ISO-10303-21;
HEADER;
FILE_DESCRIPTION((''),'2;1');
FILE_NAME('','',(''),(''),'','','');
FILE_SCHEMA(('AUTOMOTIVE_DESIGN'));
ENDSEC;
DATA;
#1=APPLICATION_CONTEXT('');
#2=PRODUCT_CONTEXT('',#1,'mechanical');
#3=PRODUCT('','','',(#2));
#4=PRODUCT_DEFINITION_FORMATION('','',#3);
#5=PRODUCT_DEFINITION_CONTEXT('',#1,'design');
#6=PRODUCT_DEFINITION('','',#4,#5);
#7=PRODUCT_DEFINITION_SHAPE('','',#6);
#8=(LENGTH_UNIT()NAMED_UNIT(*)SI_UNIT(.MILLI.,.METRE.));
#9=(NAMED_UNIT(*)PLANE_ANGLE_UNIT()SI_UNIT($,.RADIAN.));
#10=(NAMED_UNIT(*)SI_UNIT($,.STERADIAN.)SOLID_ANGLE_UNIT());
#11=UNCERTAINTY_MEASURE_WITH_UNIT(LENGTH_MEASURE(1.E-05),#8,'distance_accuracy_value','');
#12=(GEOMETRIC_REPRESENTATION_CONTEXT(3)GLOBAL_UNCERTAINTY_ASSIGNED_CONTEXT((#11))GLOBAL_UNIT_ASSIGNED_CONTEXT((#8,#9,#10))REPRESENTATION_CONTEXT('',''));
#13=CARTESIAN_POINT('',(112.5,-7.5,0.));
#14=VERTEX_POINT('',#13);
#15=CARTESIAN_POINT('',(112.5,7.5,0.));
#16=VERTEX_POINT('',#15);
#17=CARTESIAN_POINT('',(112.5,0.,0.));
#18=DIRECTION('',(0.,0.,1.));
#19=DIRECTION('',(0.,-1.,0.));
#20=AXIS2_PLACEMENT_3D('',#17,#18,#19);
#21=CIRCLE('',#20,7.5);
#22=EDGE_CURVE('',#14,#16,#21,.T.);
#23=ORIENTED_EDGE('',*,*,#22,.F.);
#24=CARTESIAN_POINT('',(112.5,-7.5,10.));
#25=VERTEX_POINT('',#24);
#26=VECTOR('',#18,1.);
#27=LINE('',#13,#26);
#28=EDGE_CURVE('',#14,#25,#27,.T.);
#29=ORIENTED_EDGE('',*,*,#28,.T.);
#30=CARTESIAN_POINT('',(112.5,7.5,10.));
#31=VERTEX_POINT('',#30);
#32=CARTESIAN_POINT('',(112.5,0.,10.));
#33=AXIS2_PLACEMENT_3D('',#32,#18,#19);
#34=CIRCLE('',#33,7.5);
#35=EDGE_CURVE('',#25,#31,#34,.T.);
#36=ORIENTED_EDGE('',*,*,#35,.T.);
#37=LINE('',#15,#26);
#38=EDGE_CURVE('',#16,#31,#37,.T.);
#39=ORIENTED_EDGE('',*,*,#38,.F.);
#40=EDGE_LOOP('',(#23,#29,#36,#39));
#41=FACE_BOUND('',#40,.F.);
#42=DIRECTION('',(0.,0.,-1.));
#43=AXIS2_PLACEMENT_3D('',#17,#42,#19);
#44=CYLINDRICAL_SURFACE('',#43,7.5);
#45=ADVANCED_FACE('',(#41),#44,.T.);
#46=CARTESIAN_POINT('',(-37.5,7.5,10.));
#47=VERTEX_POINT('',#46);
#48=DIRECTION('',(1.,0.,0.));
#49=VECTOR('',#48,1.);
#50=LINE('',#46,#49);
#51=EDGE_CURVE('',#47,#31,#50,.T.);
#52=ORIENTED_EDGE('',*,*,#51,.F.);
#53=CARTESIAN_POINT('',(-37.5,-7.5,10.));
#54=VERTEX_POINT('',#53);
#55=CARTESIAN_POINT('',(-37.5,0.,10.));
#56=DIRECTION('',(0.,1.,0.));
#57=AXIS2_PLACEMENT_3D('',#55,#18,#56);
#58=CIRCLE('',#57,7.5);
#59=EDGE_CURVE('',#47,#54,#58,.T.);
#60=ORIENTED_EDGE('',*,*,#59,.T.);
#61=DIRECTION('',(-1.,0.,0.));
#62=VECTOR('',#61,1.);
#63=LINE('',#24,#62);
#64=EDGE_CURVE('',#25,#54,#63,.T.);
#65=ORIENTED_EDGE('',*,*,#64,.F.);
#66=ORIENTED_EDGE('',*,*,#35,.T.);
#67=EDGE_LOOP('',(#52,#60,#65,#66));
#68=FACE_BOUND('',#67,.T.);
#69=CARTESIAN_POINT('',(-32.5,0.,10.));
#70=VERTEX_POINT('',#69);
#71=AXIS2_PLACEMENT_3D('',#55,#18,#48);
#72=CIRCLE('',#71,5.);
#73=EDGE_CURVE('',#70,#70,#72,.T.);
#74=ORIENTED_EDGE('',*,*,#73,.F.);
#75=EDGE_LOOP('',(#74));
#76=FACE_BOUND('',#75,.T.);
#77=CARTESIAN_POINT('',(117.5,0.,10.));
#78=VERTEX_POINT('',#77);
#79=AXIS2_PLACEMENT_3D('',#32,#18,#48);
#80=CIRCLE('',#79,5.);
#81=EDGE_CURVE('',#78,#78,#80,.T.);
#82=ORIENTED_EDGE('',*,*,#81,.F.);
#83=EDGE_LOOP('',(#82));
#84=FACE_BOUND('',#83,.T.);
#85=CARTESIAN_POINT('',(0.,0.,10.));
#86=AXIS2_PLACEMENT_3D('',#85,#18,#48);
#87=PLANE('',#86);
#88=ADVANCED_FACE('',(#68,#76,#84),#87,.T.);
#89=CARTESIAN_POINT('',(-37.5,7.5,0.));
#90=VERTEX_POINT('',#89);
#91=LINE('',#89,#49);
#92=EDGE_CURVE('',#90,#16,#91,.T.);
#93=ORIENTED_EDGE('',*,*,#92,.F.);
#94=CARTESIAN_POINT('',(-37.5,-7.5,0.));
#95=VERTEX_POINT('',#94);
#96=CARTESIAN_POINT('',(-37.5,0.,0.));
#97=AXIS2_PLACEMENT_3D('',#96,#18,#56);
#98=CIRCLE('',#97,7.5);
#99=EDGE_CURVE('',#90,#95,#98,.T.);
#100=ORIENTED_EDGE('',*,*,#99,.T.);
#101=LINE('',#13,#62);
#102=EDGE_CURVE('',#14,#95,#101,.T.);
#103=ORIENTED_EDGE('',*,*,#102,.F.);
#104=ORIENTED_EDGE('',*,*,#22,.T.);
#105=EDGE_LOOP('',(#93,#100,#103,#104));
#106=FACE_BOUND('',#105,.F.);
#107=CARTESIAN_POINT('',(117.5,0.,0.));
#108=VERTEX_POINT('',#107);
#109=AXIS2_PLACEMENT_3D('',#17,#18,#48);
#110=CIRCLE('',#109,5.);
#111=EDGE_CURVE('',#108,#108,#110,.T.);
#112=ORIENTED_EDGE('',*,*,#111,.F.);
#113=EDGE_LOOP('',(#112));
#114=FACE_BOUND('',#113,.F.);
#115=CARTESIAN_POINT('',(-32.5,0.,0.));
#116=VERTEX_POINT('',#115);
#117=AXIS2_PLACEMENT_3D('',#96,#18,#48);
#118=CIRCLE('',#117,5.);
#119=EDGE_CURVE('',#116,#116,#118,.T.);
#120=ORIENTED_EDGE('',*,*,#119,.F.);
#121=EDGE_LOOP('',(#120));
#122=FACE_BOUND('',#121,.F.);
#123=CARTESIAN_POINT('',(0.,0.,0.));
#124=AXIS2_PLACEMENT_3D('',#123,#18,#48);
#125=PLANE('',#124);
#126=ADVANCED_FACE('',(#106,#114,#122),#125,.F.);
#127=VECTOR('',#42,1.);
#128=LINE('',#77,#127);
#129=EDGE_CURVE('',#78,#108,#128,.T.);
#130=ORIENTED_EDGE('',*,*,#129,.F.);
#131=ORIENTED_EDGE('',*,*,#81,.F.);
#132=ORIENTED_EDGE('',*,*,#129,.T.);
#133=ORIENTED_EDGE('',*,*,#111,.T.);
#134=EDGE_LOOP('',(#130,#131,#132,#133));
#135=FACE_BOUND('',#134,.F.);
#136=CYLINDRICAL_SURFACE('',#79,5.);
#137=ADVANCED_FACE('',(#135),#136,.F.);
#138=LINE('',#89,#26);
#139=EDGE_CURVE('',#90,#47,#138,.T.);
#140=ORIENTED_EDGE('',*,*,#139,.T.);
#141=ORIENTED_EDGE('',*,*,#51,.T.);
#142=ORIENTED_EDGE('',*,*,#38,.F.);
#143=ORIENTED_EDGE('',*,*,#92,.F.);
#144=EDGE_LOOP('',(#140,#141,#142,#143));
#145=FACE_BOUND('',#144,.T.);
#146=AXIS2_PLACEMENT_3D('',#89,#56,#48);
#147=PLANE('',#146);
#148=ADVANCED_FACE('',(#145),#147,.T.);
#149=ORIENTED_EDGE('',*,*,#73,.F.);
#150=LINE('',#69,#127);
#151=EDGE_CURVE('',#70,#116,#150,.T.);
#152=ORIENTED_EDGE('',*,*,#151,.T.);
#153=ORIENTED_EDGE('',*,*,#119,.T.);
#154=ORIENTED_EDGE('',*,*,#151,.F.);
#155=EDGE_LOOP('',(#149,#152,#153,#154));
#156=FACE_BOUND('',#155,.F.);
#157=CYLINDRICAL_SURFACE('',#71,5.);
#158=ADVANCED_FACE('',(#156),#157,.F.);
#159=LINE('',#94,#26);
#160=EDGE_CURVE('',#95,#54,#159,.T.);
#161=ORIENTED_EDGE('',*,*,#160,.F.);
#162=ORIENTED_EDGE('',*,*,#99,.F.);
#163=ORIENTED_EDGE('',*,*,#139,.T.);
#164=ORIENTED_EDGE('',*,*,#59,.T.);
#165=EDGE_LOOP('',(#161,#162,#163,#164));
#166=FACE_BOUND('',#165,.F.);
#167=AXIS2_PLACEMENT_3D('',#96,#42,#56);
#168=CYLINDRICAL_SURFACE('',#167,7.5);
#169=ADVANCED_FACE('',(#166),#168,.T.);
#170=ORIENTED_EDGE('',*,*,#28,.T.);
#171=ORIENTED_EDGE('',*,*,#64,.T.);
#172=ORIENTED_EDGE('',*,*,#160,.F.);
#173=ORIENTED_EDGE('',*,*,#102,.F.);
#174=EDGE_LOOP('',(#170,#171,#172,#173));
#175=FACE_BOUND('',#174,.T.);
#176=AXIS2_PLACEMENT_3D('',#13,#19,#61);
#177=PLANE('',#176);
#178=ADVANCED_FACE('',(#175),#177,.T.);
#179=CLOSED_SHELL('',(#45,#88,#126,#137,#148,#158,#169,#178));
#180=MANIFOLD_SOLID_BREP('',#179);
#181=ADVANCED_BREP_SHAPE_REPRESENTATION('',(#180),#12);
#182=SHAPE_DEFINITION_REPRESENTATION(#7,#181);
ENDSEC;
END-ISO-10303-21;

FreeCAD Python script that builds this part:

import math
import FreeCAD as App
import Part
import Sketcher

V = App.Vector

doc = App.newDocument("Part")
body = doc.addObject("PartDesign::Body", "Body")

# Sketch on XY plane
sketch1 = body.newObject("Sketcher::SketchObject", "Sketch")
sketch1.AttachmentSupport = (doc.getObject("XY_Plane"), [""])
sketch1.MapMode = "FlatFace"
sketch1.addGeometry([
    Part.LineSegment(V(112, 8, 0), V(-38, 8, 0)),
    Part.ArcOfCircle(Part.Circle(V(-38, 0, 0), V(0, 0, 1), 8), math.radians(90), math.radians(270)),
    Part.LineSegment(V(-38, -8, 0), V(112, -8, 0)),
    Part.ArcOfCircle(Part.Circle(V(112, 0, 0), V(0, 0, 1), 8), math.radians(-90), math.radians(90)),
], False)
sketch1.addConstraint([
    Sketcher.Constraint("Tangent", 0, 2, 1, 1),
    Sketcher.Constraint("Tangent", 1, 2, 2, 1),
    Sketcher.Constraint("Tangent", 2, 2, 3, 1),
    Sketcher.Constraint("Tangent", 3, 2, 0, 1),
    Sketcher.Constraint("Horizontal", 0),
    Sketcher.Constraint("Horizontal", 2),
    Sketcher.Constraint("PointOnObject", 1, 3, -1),
    Sketcher.Constraint("Radius", 1, 7.5),
    Sketcher.Constraint("DistanceX", 0, 2, 0, 1, 150.0),
    Sketcher.Constraint("DistanceX", 1, 3, -1, 1, 37.5),
])
pad1 = body.newObject("PartDesign::Pad", "Pad")
pad1.Profile = sketch1
pad1.Length = 10

# Sketch on XY plane
sketch2 = body.newObject("Sketcher::SketchObject", "Sketch001")
sketch2.AttachmentSupport = (doc.getObject("XY_Plane"), [""])
sketch2.MapMode = "FlatFace"
sketch2.AttachmentOffset = App.Placement(V(0, 0, 10), App.Rotation())
sketch2.addGeometry([
    Part.Circle(V(-38, 0, 0), V(0, 0, 1), 5),
    Part.Circle(V(112, 0, 0), V(0, 0, 1), 5),
], False)
sketch2.addConstraint([
    Sketcher.Constraint("Equal", 0, 1),
    Sketcher.Constraint("PointOnObject", 0, 3, -1),
    Sketcher.Constraint("PointOnObject", 1, 3, -1),
    Sketcher.Constraint("Diameter", 0, 10.0),
    Sketcher.Constraint("DistanceX", 0, 3, 1, 3, 150.0),
    Sketcher.Constraint("DistanceX", 0, 3, -1, 1, 37.5),
])
pocket1 = body.newObject("PartDesign::Pocket", "Pocket")
pocket1.Profile = sketch2
pocket1.Length = 10

doc.recompute()
